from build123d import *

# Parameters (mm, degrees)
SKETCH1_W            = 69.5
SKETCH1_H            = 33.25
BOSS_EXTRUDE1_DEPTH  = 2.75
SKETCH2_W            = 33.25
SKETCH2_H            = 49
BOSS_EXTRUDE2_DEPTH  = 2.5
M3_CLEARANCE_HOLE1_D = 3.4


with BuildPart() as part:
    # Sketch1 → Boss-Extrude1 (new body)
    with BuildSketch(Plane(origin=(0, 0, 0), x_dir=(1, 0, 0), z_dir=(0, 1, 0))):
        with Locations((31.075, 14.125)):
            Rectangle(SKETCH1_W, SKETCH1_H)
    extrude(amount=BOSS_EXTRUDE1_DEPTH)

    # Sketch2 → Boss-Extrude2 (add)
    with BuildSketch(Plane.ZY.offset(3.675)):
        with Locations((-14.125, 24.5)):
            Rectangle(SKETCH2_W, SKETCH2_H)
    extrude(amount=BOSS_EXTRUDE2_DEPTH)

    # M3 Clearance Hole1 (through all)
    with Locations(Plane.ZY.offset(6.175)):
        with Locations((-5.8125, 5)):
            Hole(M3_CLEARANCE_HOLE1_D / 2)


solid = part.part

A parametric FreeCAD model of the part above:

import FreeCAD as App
import Part
import Sketcher


def add_polygon(sketch, points):
    """Adds a closed chain of lines whose ends are joined by coincident constraints."""
    first, n = sketch.GeometryCount, len(points)
    for a, b in zip(points, points[1:] + points[:1]):
        sketch.addGeometry(Part.LineSegment(App.Vector(*a, 0), App.Vector(*b, 0)), False)
    for i in range(n):
        sketch.addConstraint(Sketcher.Constraint("Coincident", first + i, 2, first + (i + 1) % n, 1))

doc = App.newDocument("Part")
body = doc.addObject("PartDesign::Body", "Body")

sketch1 = doc.addObject("Sketcher::SketchObject", "Sketch")
body.addObject(sketch1)
sketch1.AttachmentSupport = (doc.XZ_Plane, [""])
sketch1.MapMode = "FlatFace"
add_polygon(sketch1, [(-4, -31), (-4, 2), (66, 2), (66, -31)])
sketch1.addConstraint(Sketcher.Constraint("Vertical", 0))
sketch1.addConstraint(Sketcher.Constraint("Horizontal", 1))
sketch1.addConstraint(Sketcher.Constraint("Vertical", 2))
sketch1.addConstraint(Sketcher.Constraint("Horizontal", 3))
sketch1.addConstraint(Sketcher.Constraint("DistanceX", 1, 1, 1, 2, 69.5))
sketch1.addConstraint(Sketcher.Constraint("DistanceY", 0, 1, 0, 2, 33.25))
sketch1.addConstraint(Sketcher.Constraint("DistanceY", -1, 1, 0, 2, 2.5))
sketch1.addConstraint(Sketcher.Constraint("DistanceX", 0, 2, -1, 1, 3.675))
pad1 = doc.addObject("PartDesign::Pad", "Pad")
body.addObject(pad1)
pad1.Profile = sketch1
pad1.Length = 2.75
pad1.Reversed = True

sketch2 = doc.addObject("Sketcher::SketchObject", "Sketch001")
body.addObject(sketch2)
sketch2.AttachmentSupport = (doc.YZ_Plane, [""])
sketch2.MapMode = "FlatFace"
sketch2.AttachmentOffset = App.Placement(App.Vector(0, 0, -3.675), App.Rotation())
add_polygon(sketch2, [(49, -31), (0, -31), (0, 2), (49, 2)])
sketch2.addConstraint(Sketcher.Constraint("Horizontal", 0))
sketch2.addConstraint(Sketcher.Constraint("Vertical", 1))
sketch2.addConstraint(Sketcher.Constraint("Horizontal", 2))
sketch2.addConstraint(Sketcher.Constraint("Vertical", 3))
sketch2.addConstraint(Sketcher.Constraint("PointOnObject", 0, 2, -2))
sketch2.addConstraint(Sketcher.Constraint("DistanceX", 0, 2, 0, 1, 49.0))
sketch2.addConstraint(Sketcher.Constraint("DistanceY", 1, 1, 1, 2, 33.25))
sketch2.addConstraint(Sketcher.Constraint("DistanceY", -1, 1, 1, 2, 2.5))
pad2 = doc.addObject("PartDesign::Pad", "Pad001")
body.addObject(pad2)
pad2.Profile = sketch2
pad2.Length = 2.5
pad2.Reversed = True

sketch3 = doc.addObject("Sketcher::SketchObject", "Sketch002")
body.addObject(sketch3)
sketch3.AttachmentSupport = (doc.YZ_Plane, [""])
sketch3.MapMode = "FlatFace"
sketch3.AttachmentOffset = App.Placement(App.Vector(0, 0, -6.175), App.Rotation())
sketch3.addGeometry(Part.Circle(App.Vector(5, -5.8, 0), App.Vector(0, 0, 1), 1.7), False)
sketch3.addConstraint(Sketcher.Constraint("Diameter", 0, 3.4))
sketch3.addConstraint(Sketcher.Constraint("DistanceX", -1, 1, 0, 3, 5.0))
sketch3.addConstraint(Sketcher.Constraint("DistanceY", 0, 3, -1, 1, 5.8125))
doc.recompute()
hole = doc.addObject("PartDesign::Hole", "Hole")
body.addObject(hole)
hole.Profile = sketch3
hole.ThreadType = "None"
hole.Diameter = 3.4
hole.DepthType = "ThroughAll"
hole.Reversed = True

doc.recompute()
